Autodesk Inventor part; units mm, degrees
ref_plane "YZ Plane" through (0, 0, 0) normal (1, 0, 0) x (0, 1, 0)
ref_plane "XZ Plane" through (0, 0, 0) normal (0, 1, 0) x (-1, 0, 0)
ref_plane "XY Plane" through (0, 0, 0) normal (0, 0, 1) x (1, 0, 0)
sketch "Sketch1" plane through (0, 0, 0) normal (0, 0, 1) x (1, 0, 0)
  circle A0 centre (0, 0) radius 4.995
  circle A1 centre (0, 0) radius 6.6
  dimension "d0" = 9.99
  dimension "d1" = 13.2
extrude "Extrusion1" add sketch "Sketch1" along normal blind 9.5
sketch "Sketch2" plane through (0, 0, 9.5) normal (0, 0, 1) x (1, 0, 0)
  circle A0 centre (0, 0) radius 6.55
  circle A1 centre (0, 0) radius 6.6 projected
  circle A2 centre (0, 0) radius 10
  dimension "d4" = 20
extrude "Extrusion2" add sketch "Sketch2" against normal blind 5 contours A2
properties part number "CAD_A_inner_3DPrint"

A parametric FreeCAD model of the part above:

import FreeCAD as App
import Part
import Sketcher
from FreeCAD import Vector
Q = App.Units.Quantity

doc = App.newDocument("Part")
body = doc.addObject("PartDesign::Body", "Body")

sketch1 = body.newObject("Sketcher::SketchObject", "Sketch")
sketch1.AttachmentSupport = (doc.getObject("XY_Plane"), [""])
sketch1.MapMode = "FlatFace"
sketch1.addGeometry([
    Part.Circle(Vector(0, 0, 0), Vector(0, 0, 1), 6.6),
    Part.Circle(Vector(0, 0, 0), Vector(0, 0, 1), 4.995),
], False)
sketch1.addConstraint([
    Sketcher.Constraint("Coincident", 0, 3, -1, 1),
    Sketcher.Constraint("Coincident", 1, 3, -1, 1),
    Sketcher.Constraint("Diameter", 0, Q("13.2 mm")),
    Sketcher.Constraint("Diameter", 1, Q("9.99 mm")),
])
pad1 = body.newObject("PartDesign::Pad", "Pad")
pad1.Profile = sketch1
pad1.Length = 9.5

sketch2 = body.newObject("Sketcher::SketchObject", "Sketch001")
sketch2.AttachmentSupport = (doc.getObject("XY_Plane"), [""])
sketch2.MapMode = "FlatFace"
sketch2.AttachmentOffset = App.Placement(Vector(0, 0, 9.5), App.Rotation())
sketch2.addGeometry([
    Part.Circle(Vector(0, 0, 0), Vector(0, 0, 1), 10),
    Part.Circle(Vector(0, 0, 0), Vector(0, 0, 1), 6.6),
], False)
sketch2.addConstraint([
    Sketcher.Constraint("Coincident", 0, 3, -1, 1),
    Sketcher.Constraint("Coincident", 1, 3, -1, 1),
    Sketcher.Constraint("Diameter", 0, Q("20 mm")),
    Sketcher.Constraint("Diameter", 1, Q("13.2 mm")),
])
pad2 = body.newObject("PartDesign::Pad", "Pad001")
pad2.Profile = sketch2
pad2.Length = 5
pad2.Reversed = True

doc.recompute()
